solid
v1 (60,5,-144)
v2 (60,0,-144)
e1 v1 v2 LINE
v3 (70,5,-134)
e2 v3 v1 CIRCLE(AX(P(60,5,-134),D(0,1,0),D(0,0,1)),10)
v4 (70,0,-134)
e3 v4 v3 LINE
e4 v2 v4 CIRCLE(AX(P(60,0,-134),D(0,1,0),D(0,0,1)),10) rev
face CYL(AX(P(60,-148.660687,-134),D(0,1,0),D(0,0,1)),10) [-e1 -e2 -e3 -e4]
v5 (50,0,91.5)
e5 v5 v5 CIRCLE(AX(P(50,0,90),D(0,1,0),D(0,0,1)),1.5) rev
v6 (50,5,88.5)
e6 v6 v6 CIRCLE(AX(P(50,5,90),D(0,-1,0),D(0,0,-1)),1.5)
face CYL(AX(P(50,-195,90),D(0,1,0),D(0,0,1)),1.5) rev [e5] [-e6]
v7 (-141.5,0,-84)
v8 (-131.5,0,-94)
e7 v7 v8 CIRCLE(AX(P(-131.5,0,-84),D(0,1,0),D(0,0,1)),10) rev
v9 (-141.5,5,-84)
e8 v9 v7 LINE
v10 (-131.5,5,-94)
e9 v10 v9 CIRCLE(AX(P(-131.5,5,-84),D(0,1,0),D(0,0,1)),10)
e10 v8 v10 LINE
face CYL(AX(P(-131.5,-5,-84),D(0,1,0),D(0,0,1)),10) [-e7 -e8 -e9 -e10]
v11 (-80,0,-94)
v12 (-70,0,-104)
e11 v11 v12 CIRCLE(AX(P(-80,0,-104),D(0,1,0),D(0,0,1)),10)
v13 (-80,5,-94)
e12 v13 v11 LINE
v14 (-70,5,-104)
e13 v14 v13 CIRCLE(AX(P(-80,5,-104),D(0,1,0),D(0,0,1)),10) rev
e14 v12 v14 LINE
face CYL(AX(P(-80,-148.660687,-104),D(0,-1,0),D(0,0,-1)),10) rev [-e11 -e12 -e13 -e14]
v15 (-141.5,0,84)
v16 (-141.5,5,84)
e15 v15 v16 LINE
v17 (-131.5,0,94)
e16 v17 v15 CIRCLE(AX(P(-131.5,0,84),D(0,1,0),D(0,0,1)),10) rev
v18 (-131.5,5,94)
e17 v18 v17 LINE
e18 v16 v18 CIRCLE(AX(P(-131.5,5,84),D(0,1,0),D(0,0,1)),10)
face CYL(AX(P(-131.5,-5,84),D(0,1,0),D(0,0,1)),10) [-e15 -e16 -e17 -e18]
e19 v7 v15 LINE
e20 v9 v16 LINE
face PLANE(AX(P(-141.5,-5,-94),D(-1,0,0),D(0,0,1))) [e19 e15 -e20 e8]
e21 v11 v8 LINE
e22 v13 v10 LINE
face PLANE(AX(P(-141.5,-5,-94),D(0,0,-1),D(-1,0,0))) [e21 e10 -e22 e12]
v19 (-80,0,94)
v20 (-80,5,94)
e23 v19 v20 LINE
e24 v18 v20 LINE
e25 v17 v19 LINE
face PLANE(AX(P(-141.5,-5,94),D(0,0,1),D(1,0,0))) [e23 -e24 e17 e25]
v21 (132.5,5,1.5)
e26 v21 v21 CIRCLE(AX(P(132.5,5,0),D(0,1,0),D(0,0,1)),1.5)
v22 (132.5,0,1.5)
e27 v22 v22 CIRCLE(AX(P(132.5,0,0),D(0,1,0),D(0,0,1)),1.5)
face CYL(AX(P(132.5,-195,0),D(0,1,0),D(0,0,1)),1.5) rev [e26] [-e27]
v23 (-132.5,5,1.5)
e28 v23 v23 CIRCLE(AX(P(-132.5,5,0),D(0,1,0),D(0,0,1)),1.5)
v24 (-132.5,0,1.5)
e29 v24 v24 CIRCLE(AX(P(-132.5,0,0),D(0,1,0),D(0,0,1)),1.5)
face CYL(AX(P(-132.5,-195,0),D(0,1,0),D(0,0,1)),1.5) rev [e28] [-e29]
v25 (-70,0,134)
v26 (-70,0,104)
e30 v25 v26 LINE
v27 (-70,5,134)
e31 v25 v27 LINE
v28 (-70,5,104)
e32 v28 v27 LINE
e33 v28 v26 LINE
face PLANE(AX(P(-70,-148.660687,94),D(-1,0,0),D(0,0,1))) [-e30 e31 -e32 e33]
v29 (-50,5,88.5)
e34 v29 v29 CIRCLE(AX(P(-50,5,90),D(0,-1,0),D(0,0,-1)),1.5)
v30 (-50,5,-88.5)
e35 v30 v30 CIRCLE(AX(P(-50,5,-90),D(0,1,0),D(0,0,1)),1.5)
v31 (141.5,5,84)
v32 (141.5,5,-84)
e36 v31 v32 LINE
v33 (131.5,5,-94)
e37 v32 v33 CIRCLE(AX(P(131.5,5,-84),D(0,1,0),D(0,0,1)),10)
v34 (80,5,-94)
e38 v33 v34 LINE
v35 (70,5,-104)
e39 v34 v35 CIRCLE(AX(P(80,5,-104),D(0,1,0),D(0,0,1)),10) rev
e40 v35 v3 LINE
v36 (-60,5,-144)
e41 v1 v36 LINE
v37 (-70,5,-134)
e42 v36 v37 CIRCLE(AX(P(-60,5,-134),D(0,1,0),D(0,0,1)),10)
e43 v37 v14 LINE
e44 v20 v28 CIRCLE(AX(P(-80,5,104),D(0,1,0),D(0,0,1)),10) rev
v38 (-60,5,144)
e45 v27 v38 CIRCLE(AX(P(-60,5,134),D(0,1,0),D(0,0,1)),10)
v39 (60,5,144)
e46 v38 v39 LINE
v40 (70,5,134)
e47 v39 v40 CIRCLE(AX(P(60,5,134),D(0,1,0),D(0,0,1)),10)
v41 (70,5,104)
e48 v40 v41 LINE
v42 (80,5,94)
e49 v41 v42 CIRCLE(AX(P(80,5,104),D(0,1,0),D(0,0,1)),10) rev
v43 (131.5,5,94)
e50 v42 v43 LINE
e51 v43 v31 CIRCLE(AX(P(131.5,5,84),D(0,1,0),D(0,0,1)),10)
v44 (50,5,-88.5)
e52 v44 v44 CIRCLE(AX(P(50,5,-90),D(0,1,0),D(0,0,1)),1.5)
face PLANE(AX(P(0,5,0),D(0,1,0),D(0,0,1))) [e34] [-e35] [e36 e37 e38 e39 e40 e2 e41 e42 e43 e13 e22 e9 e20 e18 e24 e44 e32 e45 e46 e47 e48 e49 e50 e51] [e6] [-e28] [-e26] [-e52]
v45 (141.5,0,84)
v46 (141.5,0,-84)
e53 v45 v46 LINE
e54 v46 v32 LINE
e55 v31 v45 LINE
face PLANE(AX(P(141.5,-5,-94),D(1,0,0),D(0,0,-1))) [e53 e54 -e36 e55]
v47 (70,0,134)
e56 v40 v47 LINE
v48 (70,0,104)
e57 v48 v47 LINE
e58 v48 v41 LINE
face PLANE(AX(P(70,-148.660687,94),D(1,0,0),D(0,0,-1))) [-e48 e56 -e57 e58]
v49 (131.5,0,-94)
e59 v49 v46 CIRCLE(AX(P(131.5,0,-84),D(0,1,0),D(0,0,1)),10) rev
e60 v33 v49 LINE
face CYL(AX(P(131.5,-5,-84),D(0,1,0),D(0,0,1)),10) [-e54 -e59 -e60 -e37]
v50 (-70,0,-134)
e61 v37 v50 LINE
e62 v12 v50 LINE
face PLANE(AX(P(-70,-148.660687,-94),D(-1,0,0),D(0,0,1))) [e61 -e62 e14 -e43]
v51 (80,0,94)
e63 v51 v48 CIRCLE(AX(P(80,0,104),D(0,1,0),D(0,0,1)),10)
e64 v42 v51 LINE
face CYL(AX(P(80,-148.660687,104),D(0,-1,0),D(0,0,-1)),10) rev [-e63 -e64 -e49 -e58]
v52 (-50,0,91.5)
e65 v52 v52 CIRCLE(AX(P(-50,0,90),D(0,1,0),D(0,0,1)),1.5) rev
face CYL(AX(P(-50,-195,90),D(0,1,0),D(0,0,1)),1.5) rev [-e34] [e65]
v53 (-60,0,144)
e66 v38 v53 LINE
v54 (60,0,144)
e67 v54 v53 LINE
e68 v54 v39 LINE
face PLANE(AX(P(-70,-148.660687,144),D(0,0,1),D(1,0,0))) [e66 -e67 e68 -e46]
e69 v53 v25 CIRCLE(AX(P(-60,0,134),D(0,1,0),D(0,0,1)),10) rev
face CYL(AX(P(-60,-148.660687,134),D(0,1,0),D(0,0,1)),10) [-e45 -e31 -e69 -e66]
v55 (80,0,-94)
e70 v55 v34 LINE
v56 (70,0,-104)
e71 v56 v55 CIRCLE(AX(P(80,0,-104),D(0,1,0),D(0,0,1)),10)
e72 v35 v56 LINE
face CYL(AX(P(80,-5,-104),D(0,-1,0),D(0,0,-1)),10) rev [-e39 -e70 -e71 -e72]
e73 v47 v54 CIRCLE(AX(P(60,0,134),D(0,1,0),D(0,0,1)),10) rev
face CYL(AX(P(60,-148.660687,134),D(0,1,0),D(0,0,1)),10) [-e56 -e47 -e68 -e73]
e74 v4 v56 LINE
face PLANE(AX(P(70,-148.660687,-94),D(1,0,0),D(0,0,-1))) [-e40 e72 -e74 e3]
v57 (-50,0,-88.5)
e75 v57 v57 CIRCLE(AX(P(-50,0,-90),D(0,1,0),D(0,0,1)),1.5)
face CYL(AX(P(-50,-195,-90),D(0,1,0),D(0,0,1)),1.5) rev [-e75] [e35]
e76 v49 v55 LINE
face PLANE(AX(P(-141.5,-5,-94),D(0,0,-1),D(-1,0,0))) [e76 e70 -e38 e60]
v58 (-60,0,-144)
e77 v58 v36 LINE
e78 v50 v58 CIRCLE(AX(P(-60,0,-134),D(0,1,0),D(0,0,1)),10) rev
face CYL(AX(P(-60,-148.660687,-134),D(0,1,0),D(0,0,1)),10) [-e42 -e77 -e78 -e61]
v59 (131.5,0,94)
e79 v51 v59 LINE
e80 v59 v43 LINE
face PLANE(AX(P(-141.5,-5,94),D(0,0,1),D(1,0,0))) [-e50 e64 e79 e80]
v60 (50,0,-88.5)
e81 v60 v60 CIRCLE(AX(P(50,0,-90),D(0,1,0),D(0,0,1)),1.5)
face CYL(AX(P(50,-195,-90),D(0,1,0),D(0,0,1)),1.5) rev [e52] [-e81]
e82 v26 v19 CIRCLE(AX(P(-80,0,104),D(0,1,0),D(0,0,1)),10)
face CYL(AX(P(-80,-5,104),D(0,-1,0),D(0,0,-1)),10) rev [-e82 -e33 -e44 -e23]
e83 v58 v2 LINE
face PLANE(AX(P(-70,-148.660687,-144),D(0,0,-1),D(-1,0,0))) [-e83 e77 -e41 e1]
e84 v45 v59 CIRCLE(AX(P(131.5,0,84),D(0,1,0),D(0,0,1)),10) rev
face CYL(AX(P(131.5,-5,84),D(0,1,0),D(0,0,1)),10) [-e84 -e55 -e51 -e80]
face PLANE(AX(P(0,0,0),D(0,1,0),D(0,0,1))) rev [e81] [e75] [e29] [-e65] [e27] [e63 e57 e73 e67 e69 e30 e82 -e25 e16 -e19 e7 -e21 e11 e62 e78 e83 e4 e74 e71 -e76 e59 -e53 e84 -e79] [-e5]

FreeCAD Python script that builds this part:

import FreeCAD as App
import Part
import Sketcher

V = App.Vector


def edges_at(feature, points):
    """Names of the edges that pass closest to the given points."""
    edges = feature.Shape.Edges
    near = lambda p: min(range(len(edges)), key=lambda i: edges[i].distToShape(Part.Vertex(*p))[0])
    return sorted({f"Edge{near(p) + 1}" for p in points})


def add_polygon(sketch, points):
    """Adds a closed chain of lines whose ends are joined by coincident constraints."""
    first, n = sketch.GeometryCount, len(points)
    for a, b in zip(points, points[1:] + points[:1]):
        sketch.addGeometry(Part.LineSegment(App.Vector(*a, 0), App.Vector(*b, 0)), False)
    for i in range(n):
        sketch.addConstraint(Sketcher.Constraint("Coincident", first + i, 2, first + (i + 1) % n, 1))

doc = App.newDocument("Part")
params = doc.addObject("Spreadsheet::Sheet", "Params")
for row, (alias, value) in enumerate([
    ("sketch1_width", "300 mm"),
    ("pad1_length", "5 mm"),
    ("pocket1_length", "10 mm"),
    ("pocket2_length", "10 mm"),
    ("sketch4_width", "283 mm"),
    ("sketch4_height", "188 mm"),
    ("pocket3_length", "10 mm"),
    ("fillet_radius", "10 mm"),
    ("sketch5_diameter", "3 mm"),
    ("pocket4_length", "200 mm"),
    ("sketch6_diameter", "3 mm"),
    ("pocket5_length", "200 mm"),
    ("sketch7_width", "140 mm"),
    ("sketch7_height", "50 mm"),
    ("pad2_length", "5 mm"),
    ("fillet2_radius", "10 mm"),
], start=1):
    params.set(f"A{row}", alias)
    params.set(f"B{row}", "=" + value)
    params.setAlias(f"B{row}", alias)

body = doc.addObject("PartDesign::Body", "Body")

sketch1 = body.newObject("Sketcher::SketchObject", "Sketch")
sketch1.AttachmentSupport = (doc.getObject("XZ_Plane"), [""])
sketch1.MapMode = "FlatFace"
add_polygon(sketch1, [(-150, -150), (-150, 150), (150, 150), (150, -150)])
sketch1.addConstraint([
    Sketcher.Constraint("Vertical", 0),
    Sketcher.Constraint("Horizontal", 1),
    Sketcher.Constraint("Vertical", 2),
    Sketcher.Constraint("Horizontal", 3),
    Sketcher.Constraint("Symmetric", 0, 2, 2, 2, -1, 1),
    Sketcher.Constraint("Equal", 3, 0),
    Sketcher.Constraint("DistanceX", 1, 1, 1, 2, 300.0),
])
sketch1.setExpression("Constraints[10]", "Params.sketch1_width")
pad1 = body.newObject("PartDesign::Pad", "Pad")
pad1.Profile = sketch1
pad1.setExpression("Length", "Params.pad1_length")
pad1.Reversed = True

sketch2 = body.newObject("Sketcher::SketchObject", "Sketch001")
sketch2.AttachmentSupport = (doc.getObject("XZ_Plane"), [""])
sketch2.MapMode = "FlatFace"
sketch2.AttachmentOffset = App.Placement(V(0, 0, -5), App.Rotation())
add_polygon(sketch2, [(-88, -95), (84, -95), (73, -171), (-49, -171)])
add_polygon(sketch2, [(-82, 95), (-68, 171), (35, 175), (79, 129), (79, 95)])
sketch2.addConstraint([
    Sketcher.Constraint("Horizontal", 0),
    Sketcher.Constraint("Horizontal", 2),
    Sketcher.Constraint("Vertical", 7),
    Sketcher.Constraint("Horizontal", 8),
    Sketcher.Constraint("DistanceY", 0, 2, -1, 1, 95.0),
    Sketcher.Constraint("DistanceY", -1, 1, 7, 2, 95.0),
    Sketcher.Constraint("Distance", 3, 85.4792),
    Sketcher.Constraint("DistanceX", -1, 1, 1, 2, 73.252498),
    Sketcher.Constraint("DistanceY", 4, 2, 5, 2, 4.5088),
    Sketcher.Constraint("Distance", 1, 76.50217),
    Sketcher.Constraint("DistanceX", 0, 1, 0, 2, 172.576175),
    Sketcher.Constraint("DistanceX", 2, 2, 2, 1, 121.796017),
    Sketcher.Constraint("DistanceX", 8, 2, 8, 1, 160.624543),
    Sketcher.Constraint("DistanceY", 7, 2, 7, 1, 34.283444),
    Sketcher.Constraint("DistanceX", -1, 1, 6, 2, 78.788681),
    Sketcher.Constraint("DistanceX", 4, 2, 0, 2, 152.722279),
    Sketcher.Constraint("DistanceY", 2, 2, 4, 2, 341.46107),
    Sketcher.Constraint("DistanceX", 3, 2, 5, 2, 123.193379),
])
pocket1 = body.newObject("PartDesign::Pocket", "Pocket")
pocket1.Profile = sketch2
pocket1.setExpression("Length", "Params.pocket1_length")
pocket1.Reversed = True

sketch3 = body.newObject("Sketcher::SketchObject", "Sketch002")
sketch3.AttachmentSupport = (doc.getObject("XZ_Plane"), [""])
sketch3.MapMode = "FlatFace"
sketch3.AttachmentOffset = App.Placement(V(0, 0, -5), App.Rotation())
add_polygon(sketch3, [(234, -95), (224, -205), (-178, -216), (-227, -137), (-227, -95)])
add_polygon(sketch3, [(224, 95), (-238, 95), (-238, 206), (224, 206)])
sketch3.addConstraint([
    Sketcher.Constraint("Vertical", 3),
    Sketcher.Constraint("Horizontal", 4),
    Sketcher.Constraint("Horizontal", 5),
    Sketcher.Constraint("Vertical", 6),
    Sketcher.Constraint("Horizontal", 7),
    Sketcher.Constraint("Vertical", 8),
    Sketcher.Constraint("Vertical", 0, 2, 7, 2),
    Sketcher.Constraint("DistanceY", 3, 2, -1, 1, 95.0),
    Sketcher.Constraint("DistanceY", -1, 1, 5, 2, 95.0),
    Sketcher.Constraint("DistanceY", 3, 1, 3, 2, 42.419102),
    Sketcher.Constraint("DistanceY", 6, 1, 6, 2, 110.612039),
    Sketcher.Constraint("DistanceY", 1, 2, 2, 2, 78.525201),
    Sketcher.Constraint("DistanceX", 5, 2, 3, 2, 11.709898),
    Sketcher.Constraint("DistanceX", 4, 1, 4, 2, 460.130125),
    Sketcher.Constraint("DistanceX", 5, 2, 5, 1, 462.196578),
    Sketcher.Constraint("DistanceY", 0, 2, -1, 1, 204.923222),
    Sketcher.Constraint("DistanceX", 1, 2, -1, 1, 177.714928),
    Sketcher.Constraint("DistanceX", -1, 1, 4, 2, 233.50915),
])
pocket2 = body.newObject("PartDesign::Pocket", "Pocket001")
pocket2.Profile = sketch3
pocket2.setExpression("Length", "Params.pocket2_length")
pocket2.Reversed = True

sketch4 = body.newObject("Sketcher::SketchObject", "Sketch003")
sketch4.AttachmentSupport = (doc.getObject("XZ_Plane"), [""])
sketch4.MapMode = "FlatFace"
sketch4.AttachmentOffset = App.Placement(V(0, 0, -5), App.Rotation())
add_polygon(sketch4, [(-187, -132), (-187, 132), (187, 132), (187, -132)])
add_polygon(sketch4, [(142, 94), (-142, 94), (-142, -94), (142, -94)])
sketch4.addConstraint([
    Sketcher.Constraint("Vertical", 0),
    Sketcher.Constraint("Horizontal", 1),
    Sketcher.Constraint("Vertical", 2),
    Sketcher.Constraint("Horizontal", 3),
    Sketcher.Constraint("Horizontal", 4),
    Sketcher.Constraint("Vertical", 5),
    Sketcher.Constraint("Horizontal", 6),
    Sketcher.Constraint("Vertical", 7),
    Sketcher.Constraint("Symmetric", 0, 2, 2, 2, -1, 1),
    Sketcher.Constraint("Symmetric", 4, 2, 6, 2, -1, 1),
    Sketcher.Constraint("DistanceX", 4, 2, 4, 1, 283.0),
    Sketcher.Constraint("DistanceY", 5, 2, 5, 1, 188.0),
    Sketcher.Constraint("DistanceX", 1, 1, 1, 2, 373.028),
    Sketcher.Constraint("DistanceY", 0, 1, 0, 2, 263.028),
])
sketch4.setExpression("Constraints[18]", "Params.sketch4_width")
sketch4.setExpression("Constraints[19]", "Params.sketch4_height")
pocket3 = body.newObject("PartDesign::Pocket", "Pocket002")
pocket3.Profile = sketch4
pocket3.setExpression("Length", "Params.pocket3_length")
pocket3.Reversed = True
doc.recompute()

fillet = body.newObject("PartDesign::Fillet", "Fillet")
fillet.Base = (pocket3, edges_at(pocket3, [
    (-141.5, 2.5, -94),
    (141.5, 2.5, -94),
    (141.5, 2.5, 94),
    (-141.5, 2.5, 94),
]))
fillet.setExpression("Radius", "Params.fillet_radius")

sketch5 = body.newObject("Sketcher::SketchObject", "Sketch004")
sketch5.AttachmentSupport = (doc.getObject("XZ_Plane"), [""])
sketch5.MapMode = "FlatFace"
sketch5.AttachmentOffset = App.Placement(V(0, 0, -5), App.Rotation())
sketch5.addGeometry([
    Part.Circle(V(-132.5, 0, 0), V(0, 0, 1), 1.5),
    Part.Circle(V(132.5, 0, 0), V(0, 0, 1), 1.5),
], False)
sketch5.addConstraint([
    Sketcher.Constraint("Equal", 0, 1),
    Sketcher.Constraint("Symmetric", 0, 3, 1, 3, -1, 1),
    Sketcher.Constraint("PointOnObject", 0, 3, -1),
    Sketcher.Constraint("Diameter", 0, 3.0),
    Sketcher.Constraint("DistanceX", 0, 3, 1, 3, 265.0),
])
sketch5.setExpression("Constraints[3]", "Params.sketch5_diameter")
pocket4 = body.newObject("PartDesign::Pocket", "Pocket003")
pocket4.Profile = sketch5
pocket4.setExpression("Length", "Params.pocket4_length")
pocket4.Reversed = True

sketch6 = body.newObject("Sketcher::SketchObject", "Sketch005")
sketch6.AttachmentSupport = (doc.getObject("XZ_Plane"), [""])
sketch6.MapMode = "FlatFace"
sketch6.AttachmentOffset = App.Placement(V(0, 0, -5), App.Rotation())
sketch6.addGeometry([
    Part.Circle(V(-50, -90, 0), V(0, 0, 1), 1.5),
    Part.Circle(V(50, -90, 0), V(0, 0, 1), 1.5),
], False)
sketch6.addConstraint([
    Sketcher.Constraint("Equal", 0, 1),
    Sketcher.Constraint("Symmetric", 0, 3, 1, 3, -2),
    Sketcher.Constraint("Diameter", 0, 3.0),
    Sketcher.Constraint("DistanceX", 0, 3, -1, 1, 50.0),
    Sketcher.Constraint("DistanceY", 0, 3, -1, 1, 90.0),
])
sketch6.setExpression("Constraints[2]", "Params.sketch6_diameter")
pocket5 = body.newObject("PartDesign::Pocket", "Pocket004")
pocket5.Profile = sketch6
pocket5.setExpression("Length", "Params.pocket5_length")
pocket5.Reversed = True
doc.recompute()

mirrored = body.newObject("PartDesign::Mirrored", "Mirrored")
mirrored.Originals = [pocket5]
mirrored.MirrorPlane = (doc.getObject("XY_Plane"), [""])
body.Tip = mirrored

sketch7 = body.newObject("Sketcher::SketchObject", "Sketch006")
sketch7.AttachmentSupport = (doc.getObject("XZ_Plane"), [""])
sketch7.MapMode = "FlatFace"
sketch7.AttachmentOffset = App.Placement(V(0, 0, -5), App.Rotation())
add_polygon(sketch7, [(-70, 94), (-70, 144), (70, 144), (70, 94)])
add_polygon(sketch7, [(-70, -144), (-70, -94), (70, -94), (70, -144)])
sketch7.addConstraint([
    Sketcher.Constraint("Vertical", 0),
    Sketcher.Constraint("Horizontal", 1),
    Sketcher.Constraint("Vertical", 2),
    Sketcher.Constraint("Horizontal", 3),
    Sketcher.Constraint("Vertical", 4),
    Sketcher.Constraint("Horizontal", 5),
    Sketcher.Constraint("Vertical", 6),
    Sketcher.Constraint("Horizontal", 7),
    Sketcher.Constraint("Symmetric", 2, 2, 4, 2, -1, 1),
    Sketcher.Constraint("Symmetric", 0, 2, 6, 2, -1, 1),
    Sketcher.Constraint("Vertical", 3, 2, 4, 2),
    Sketcher.Constraint("DistanceX", 1, 1, 1, 2, 140.0),
    Sketcher.Constraint("DistanceY", 0, 1, 0, 2, 50.0),
    Sketcher.Constraint("DistanceY", -1, 1, 0, 2, 144.0),
])
sketch7.setExpression("Constraints[19]", "Params.sketch7_width")
sketch7.setExpression("Constraints[20]", "Params.sketch7_height")
pad2 = body.newObject("PartDesign::Pad", "Pad001")
pad2.Profile = sketch7
pad2.setExpression("Length", "Params.pad2_length")
doc.recompute()

fillet2 = body.newObject("PartDesign::Fillet", "Fillet001")
fillet2.Base = (pad2, edges_at(pad2, [
    (-70, 2.5, 144),
    (-70, 2.5, 94),
    (70, 2.5, 94),
    (70, 2.5, 144),
    (70, 2.5, -94),
    (-70, 2.5, -94),
    (-70, 2.5, -144),
    (70, 2.5, -144),
]))
fillet2.setExpression("Radius", "Params.fillet2_radius")

doc.recompute()
